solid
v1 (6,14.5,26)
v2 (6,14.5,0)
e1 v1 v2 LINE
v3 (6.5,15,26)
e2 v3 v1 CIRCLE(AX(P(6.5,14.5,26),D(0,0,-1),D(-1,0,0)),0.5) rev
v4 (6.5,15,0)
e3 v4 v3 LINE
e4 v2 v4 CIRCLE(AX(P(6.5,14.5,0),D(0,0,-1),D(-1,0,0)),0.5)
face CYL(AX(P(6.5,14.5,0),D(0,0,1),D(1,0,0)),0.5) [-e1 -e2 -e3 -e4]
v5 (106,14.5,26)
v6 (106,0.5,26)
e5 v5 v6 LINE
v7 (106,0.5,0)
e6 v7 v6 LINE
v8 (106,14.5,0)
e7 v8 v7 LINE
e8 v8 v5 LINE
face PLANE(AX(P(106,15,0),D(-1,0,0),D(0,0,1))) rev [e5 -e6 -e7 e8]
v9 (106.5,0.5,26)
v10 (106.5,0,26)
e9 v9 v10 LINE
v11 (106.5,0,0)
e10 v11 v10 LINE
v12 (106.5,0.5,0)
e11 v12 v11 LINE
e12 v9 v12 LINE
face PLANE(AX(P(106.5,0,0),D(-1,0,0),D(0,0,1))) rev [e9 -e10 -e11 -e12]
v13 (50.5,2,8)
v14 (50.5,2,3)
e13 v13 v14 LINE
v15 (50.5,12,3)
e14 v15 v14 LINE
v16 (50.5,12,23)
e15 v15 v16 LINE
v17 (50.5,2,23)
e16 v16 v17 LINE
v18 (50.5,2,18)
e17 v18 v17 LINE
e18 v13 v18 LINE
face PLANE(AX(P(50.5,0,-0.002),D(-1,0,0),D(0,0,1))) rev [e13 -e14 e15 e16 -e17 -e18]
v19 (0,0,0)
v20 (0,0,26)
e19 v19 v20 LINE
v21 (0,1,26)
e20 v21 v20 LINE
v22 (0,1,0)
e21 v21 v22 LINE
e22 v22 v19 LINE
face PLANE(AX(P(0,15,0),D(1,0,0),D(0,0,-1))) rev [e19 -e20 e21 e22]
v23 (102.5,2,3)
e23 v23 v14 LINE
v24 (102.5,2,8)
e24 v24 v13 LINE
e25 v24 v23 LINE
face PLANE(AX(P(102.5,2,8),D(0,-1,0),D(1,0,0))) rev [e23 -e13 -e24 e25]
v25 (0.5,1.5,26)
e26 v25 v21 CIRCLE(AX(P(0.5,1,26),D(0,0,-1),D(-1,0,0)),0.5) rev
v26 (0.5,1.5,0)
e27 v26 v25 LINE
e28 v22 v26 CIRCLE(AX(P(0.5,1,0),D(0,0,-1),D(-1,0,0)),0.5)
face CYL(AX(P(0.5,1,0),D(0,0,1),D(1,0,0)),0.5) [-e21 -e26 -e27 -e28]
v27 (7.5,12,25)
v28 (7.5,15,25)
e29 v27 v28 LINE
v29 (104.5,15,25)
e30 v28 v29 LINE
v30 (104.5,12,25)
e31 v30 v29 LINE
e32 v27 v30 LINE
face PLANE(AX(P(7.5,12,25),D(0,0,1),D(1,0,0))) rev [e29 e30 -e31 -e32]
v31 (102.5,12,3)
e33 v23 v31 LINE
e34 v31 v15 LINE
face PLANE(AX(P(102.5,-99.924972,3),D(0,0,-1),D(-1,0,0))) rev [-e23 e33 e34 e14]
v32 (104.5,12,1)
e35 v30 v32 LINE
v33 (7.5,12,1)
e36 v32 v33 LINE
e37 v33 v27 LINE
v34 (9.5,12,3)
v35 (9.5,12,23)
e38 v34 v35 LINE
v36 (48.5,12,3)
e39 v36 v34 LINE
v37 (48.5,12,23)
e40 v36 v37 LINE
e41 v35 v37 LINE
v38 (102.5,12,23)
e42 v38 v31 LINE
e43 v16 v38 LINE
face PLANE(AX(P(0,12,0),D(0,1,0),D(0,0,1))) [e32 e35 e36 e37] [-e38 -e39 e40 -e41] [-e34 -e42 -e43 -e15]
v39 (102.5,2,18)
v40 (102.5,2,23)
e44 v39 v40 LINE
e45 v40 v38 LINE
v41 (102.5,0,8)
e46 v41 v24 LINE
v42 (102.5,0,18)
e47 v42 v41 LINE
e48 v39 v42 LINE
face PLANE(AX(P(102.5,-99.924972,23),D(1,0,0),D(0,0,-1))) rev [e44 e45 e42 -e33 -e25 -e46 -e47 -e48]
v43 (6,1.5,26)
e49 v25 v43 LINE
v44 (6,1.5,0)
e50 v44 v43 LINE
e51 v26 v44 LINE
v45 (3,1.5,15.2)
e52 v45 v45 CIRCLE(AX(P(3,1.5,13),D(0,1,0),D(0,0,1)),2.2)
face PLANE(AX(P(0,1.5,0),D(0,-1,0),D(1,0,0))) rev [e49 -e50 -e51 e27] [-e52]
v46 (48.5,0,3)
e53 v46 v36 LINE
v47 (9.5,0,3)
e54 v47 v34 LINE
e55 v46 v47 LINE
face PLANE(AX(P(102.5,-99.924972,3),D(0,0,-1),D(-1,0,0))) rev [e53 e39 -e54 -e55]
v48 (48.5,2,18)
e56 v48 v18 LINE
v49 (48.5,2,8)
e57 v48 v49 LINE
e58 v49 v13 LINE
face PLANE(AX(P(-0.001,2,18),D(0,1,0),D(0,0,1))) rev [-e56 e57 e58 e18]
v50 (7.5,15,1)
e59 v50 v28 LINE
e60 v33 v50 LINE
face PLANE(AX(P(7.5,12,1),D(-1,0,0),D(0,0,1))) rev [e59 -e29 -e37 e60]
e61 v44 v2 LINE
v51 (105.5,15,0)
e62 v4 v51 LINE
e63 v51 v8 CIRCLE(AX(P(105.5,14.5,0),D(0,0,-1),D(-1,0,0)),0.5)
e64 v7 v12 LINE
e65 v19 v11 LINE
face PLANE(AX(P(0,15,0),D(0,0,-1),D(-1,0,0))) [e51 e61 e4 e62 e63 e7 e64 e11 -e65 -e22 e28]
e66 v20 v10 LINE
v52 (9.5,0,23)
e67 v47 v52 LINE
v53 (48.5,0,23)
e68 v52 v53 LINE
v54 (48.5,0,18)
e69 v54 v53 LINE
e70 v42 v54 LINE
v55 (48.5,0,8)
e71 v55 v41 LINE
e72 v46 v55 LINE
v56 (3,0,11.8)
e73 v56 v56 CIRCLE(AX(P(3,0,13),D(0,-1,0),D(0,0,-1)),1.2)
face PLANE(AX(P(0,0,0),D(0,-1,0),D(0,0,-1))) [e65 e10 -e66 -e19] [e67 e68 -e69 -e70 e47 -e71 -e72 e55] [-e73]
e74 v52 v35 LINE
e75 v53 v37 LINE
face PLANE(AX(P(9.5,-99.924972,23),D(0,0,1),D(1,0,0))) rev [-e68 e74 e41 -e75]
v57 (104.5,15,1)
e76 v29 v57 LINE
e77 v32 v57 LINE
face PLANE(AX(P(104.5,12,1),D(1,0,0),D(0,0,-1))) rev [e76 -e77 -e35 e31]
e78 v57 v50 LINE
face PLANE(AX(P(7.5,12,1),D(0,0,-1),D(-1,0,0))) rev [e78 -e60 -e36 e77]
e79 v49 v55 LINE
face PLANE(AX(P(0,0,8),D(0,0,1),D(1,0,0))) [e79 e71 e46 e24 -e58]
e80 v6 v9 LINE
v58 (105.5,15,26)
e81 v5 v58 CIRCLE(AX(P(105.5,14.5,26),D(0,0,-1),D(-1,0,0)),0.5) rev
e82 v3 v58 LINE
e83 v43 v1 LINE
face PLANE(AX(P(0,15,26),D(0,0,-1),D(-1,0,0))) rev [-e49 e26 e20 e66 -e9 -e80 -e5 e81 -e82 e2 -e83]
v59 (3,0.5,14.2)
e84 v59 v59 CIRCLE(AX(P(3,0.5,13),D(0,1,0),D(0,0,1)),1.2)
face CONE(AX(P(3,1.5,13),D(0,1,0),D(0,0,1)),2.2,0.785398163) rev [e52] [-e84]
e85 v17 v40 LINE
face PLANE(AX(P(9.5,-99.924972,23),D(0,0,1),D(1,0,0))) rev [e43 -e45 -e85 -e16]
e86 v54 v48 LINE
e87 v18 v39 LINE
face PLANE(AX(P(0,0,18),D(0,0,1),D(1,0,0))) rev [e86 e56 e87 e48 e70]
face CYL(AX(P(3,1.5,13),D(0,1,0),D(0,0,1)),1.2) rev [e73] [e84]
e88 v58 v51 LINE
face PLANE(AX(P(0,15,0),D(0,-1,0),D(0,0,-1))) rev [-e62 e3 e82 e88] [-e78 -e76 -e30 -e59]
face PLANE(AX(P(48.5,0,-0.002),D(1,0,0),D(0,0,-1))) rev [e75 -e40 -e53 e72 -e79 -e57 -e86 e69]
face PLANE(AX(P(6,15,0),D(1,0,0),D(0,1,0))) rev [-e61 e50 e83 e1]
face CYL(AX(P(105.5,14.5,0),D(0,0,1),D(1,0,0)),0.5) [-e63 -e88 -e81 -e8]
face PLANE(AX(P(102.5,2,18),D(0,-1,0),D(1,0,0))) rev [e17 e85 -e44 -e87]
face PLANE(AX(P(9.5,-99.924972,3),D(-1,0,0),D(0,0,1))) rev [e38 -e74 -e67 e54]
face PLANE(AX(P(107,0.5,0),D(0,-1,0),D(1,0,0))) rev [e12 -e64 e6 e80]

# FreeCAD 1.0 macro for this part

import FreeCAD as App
import Part
import Sketcher
Q = App.Units.Quantity


def edges_at(feature, points):
    """Names of the edges that pass closest to the given points."""
    edges = feature.Shape.Edges
    near = lambda p: min(range(len(edges)), key=lambda i: edges[i].distToShape(Part.Vertex(*p))[0])
    return sorted({f"Edge{near(p) + 1}" for p in points})


def add_polygon(sketch, points):
    """Adds a closed chain of lines whose ends are joined by coincident constraints."""
    first, n = sketch.GeometryCount, len(points)
    for a, b in zip(points, points[1:] + points[:1]):
        sketch.addGeometry(Part.LineSegment(App.Vector(*a, 0), App.Vector(*b, 0)), False)
    for i in range(n):
        sketch.addConstraint(Sketcher.Constraint("Coincident", first + i, 2, first + (i + 1) % n, 1))

doc = App.newDocument("Part")
body = doc.addObject("PartDesign::Body", "Body")

sketch1 = body.newObject("Sketcher::SketchObject", "Sketch")
sketch1.AttachmentSupport = (doc.getObject("XZ_Plane"), [""])
sketch1.MapMode = "FlatFace"
add_polygon(sketch1, [(0, 0), (0, 26), (107, 26), (107, 0)])
sketch1.addConstraint([
    Sketcher.Constraint("Vertical", 0),
    Sketcher.Constraint("Horizontal", 1),
    Sketcher.Constraint("Vertical", 2),
    Sketcher.Constraint("Horizontal", 3),
    Sketcher.Constraint("Coincident", 3, 2, -1, 1),
    Sketcher.Constraint("DistanceX", 1, 1, 1, 2, Q("107 mm")),
    Sketcher.Constraint("DistanceY", 0, 1, 0, 2, Q("26 mm")),
])
pad1 = body.newObject("PartDesign::Pad", "Pad")
pad1.Profile = sketch1
pad1.Length = 15
pad1.Reversed = True

sketch2 = body.newObject("Sketcher::SketchObject", "Sketch001")
sketch2.AttachmentSupport = (doc.getObject("XY_Plane"), [""])
sketch2.MapMode = "FlatFace"
sketch2.AttachmentOffset = App.Placement(App.Vector(0, 0, 26), App.Rotation())
add_polygon(sketch2, [(106, 15), (106, 0.5), (107, 0.5), (107, 15)])
add_polygon(sketch2, [(0, 15), (0, 1.5), (6, 1.5), (6, 15)])
sketch2.addConstraint([
    Sketcher.Constraint("Vertical", 0),
    Sketcher.Constraint("Horizontal", 1),
    Sketcher.Constraint("Vertical", 2),
    Sketcher.Constraint("Horizontal", 3),
    Sketcher.Constraint("Vertical", 4),
    Sketcher.Constraint("Horizontal", 5),
    Sketcher.Constraint("Vertical", 6),
    Sketcher.Constraint("Horizontal", 7),
    Sketcher.Constraint("PointOnObject", 4, 2, -2),
    Sketcher.Constraint("Horizontal", 3, 2, 6, 2),
    Sketcher.Constraint("DistanceX", 1, 1, 1, 2, Q("1 mm")),
    Sketcher.Constraint("DistanceX", 5, 1, 5, 2, Q("6 mm")),
    Sketcher.Constraint("DistanceY", 0, 2, 0, 1, Q("14.5 mm")),
    Sketcher.Constraint("DistanceY", 4, 2, 4, 1, Q("13.5 mm")),
    Sketcher.Constraint("DistanceX", -1, 1, 0, 2, Q("106 mm")),
    Sketcher.Constraint("DistanceY", -1, 1, 2, 2, Q("15 mm")),
])
pocket1 = body.newObject("PartDesign::Pocket", "Pocket")
pocket1.Profile = sketch2
pocket1.Type = "ThroughAll"
doc.recompute()

fillet = body.newObject("PartDesign::Fillet", "Fillet")
fillet.Base = (pocket1, edges_at(pocket1, [(106, 15, 13), (0, 1.5, 13), (6, 15, 13)]))
fillet.Radius = 0.5

sketch3 = body.newObject("Sketcher::SketchObject", "Sketch002")
sketch3.AttachmentSupport = (doc.getObject("XZ_Plane"), [""])
sketch3.MapMode = "FlatFace"
sketch3.AttachmentOffset = App.Placement(App.Vector(0, 0, -1.5), App.Rotation())
sketch3.addGeometry(Part.Circle(App.Vector(3, 13, 0), App.Vector(0, 0, 1), 1.2), False)
sketch3.addConstraint([
    Sketcher.Constraint("Diameter", 0, Q("2.4 mm")),
    Sketcher.Constraint("DistanceX", -1, 1, 0, 3, Q("3 mm")),
    Sketcher.Constraint("DistanceY", -1, 1, 0, 3, Q("13 mm")),
])
doc.recompute()
hole = body.newObject("PartDesign::Hole", "Hole")
hole.Profile = sketch3
hole.ThreadType = "None"
hole.Diameter = 2.4
hole.DepthType = "Dimension"
hole.Depth = 15
hole.DrillPoint = "Angled"
hole.DrillPointAngle = 118
hole.HoleCutType = "Countersink"
hole.HoleCutDiameter = 4.4
hole.HoleCutCountersinkAngle = 90
hole.Reversed = True

sketch4 = body.newObject("Sketcher::SketchObject", "Sketch003")
sketch4.AttachmentSupport = (doc.getObject("XZ_Plane"), [""])
sketch4.MapMode = "FlatFace"
sketch4.AttachmentOffset = App.Placement(App.Vector(0, 0, -15), App.Rotation())
add_polygon(sketch4, [(8, 1), (8, 25), (104, 25), (104, 1)])
sketch4.addConstraint([
    Sketcher.Constraint("Vertical", 0),
    Sketcher.Constraint("Horizontal", 1),
    Sketcher.Constraint("Vertical", 2),
    Sketcher.Constraint("Horizontal", 3),
    Sketcher.Constraint("DistanceX", 1, 1, 1, 2, Q("97 mm")),
    Sketcher.Constraint("DistanceY", 0, 1, 0, 2, Q("24 mm")),
    Sketcher.Constraint("DistanceY", -1, 1, 0, 2, Q("25 mm")),
    Sketcher.Constraint("DistanceX", -1, 1, 0, 2, Q("7.5 mm")),
])
pocket2 = body.newObject("PartDesign::Pocket", "Pocket001")
pocket2.Profile = sketch4
pocket2.Type = "ThroughAll"
pocket2.Reversed = True

sketch5 = body.newObject("Sketcher::SketchObject", "Sketch004")
sketch5.AttachmentSupport = (doc.getObject("XZ_Plane"), [""])
sketch5.MapMode = "FlatFace"
sketch5.AttachmentOffset = App.Placement(App.Vector(0, 0, -15), App.Rotation())
add_polygon(sketch5, [(8, 1), (8, 25), (104, 25), (104, 1)])
sketch5.addConstraint([
    Sketcher.Constraint("Vertical", 0),
    Sketcher.Constraint("Horizontal", 1),
    Sketcher.Constraint("Vertical", 2),
    Sketcher.Constraint("Horizontal", 3),
    Sketcher.Constraint("DistanceX", 1, 1, 1, 2, Q("97 mm")),
    Sketcher.Constraint("DistanceY", 0, 1, 0, 2, Q("24 mm")),
    Sketcher.Constraint("DistanceY", -1, 1, 0, 2, Q("25 mm")),
    Sketcher.Constraint("DistanceX", -1, 1, 0, 2, Q("7.5 mm")),
])
pad2 = body.newObject("PartDesign::Pad", "Pad001")
pad2.Profile = sketch5
pad2.Length = 1

sketch6 = body.newObject("Sketcher::SketchObject", "Sketch005")
sketch6.AttachmentSupport = (doc.getObject("XZ_Plane"), [""])
sketch6.MapMode = "FlatFace"
add_polygon(sketch6, [(8, 1), (8, 25), (104, 25), (104, 1)])
sketch6.addConstraint([
    Sketcher.Constraint("Vertical", 0),
    Sketcher.Constraint("Horizontal", 1),
    Sketcher.Constraint("Vertical", 2),
    Sketcher.Constraint("Horizontal", 3),
    Sketcher.Constraint("DistanceX", 1, 1, 1, 2, Q("97 mm")),
    Sketcher.Constraint("DistanceY", 0, 1, 0, 2, Q("24 mm")),
    Sketcher.Constraint("DistanceY", -1, 1, 0, 2, Q("25 mm")),
    Sketcher.Constraint("DistanceX", -1, 1, 0, 2, Q("7.5 mm")),
])
pocket3 = body.newObject("PartDesign::Pocket", "Pocket002")
pocket3.Profile = sketch6
pocket3.Type = "ThroughAll"

sketch7 = body.newObject("Sketcher::SketchObject", "Sketch006")
sketch7.AttachmentSupport = (doc.getObject("XZ_Plane"), [""])
sketch7.MapMode = "FlatFace"
sketch7.AttachmentOffset = App.Placement(App.Vector(0, 0, -15), App.Rotation())
add_polygon(sketch7, [(8, 1), (8, 25), (104, 25), (104, 1)])
add_polygon(sketch7, [(102, 23), (10, 23), (10, 3), (102, 3)])
sketch7.addConstraint([
    Sketcher.Constraint("Vertical", 0),
    Sketcher.Constraint("Horizontal", 1),
    Sketcher.Constraint("Vertical", 2),
    Sketcher.Constraint("Horizontal", 3),
    Sketcher.Constraint("Horizontal", 4),
    Sketcher.Constraint("Vertical", 5),
    Sketcher.Constraint("Horizontal", 6),
    Sketcher.Constraint("Vertical", 7),
    Sketcher.Constraint("DistanceX", 1, 1, 1, 2, Q("97 mm")),
    Sketcher.Constraint("DistanceX", 4, 2, 4, 1, Q("93 mm")),
    Sketcher.Constraint("DistanceY", 0, 1, 0, 2, Q("24 mm")),
    Sketcher.Constraint("DistanceY", 5, 2, 5, 1, Q("20 mm")),
    Sketcher.Constraint("DistanceY", -1, 1, 0, 2, Q("25 mm")),
    Sketcher.Constraint("DistanceY", -1, 1, 4, 2, Q("23 mm")),
    Sketcher.Constraint("DistanceX", 0, 2, 4, 2, Q("2 mm")),
    Sketcher.Constraint("DistanceX", -1, 1, 0, 2, Q("7.5 mm")),
])
pad3 = body.newObject("PartDesign::Pad", "Pad002")
pad3.Profile = sketch7
pad3.Length = 15

sketch8 = body.newObject("Sketcher::SketchObject", "Sketch007")
sketch8.AttachmentSupport = (doc.getObject("XZ_Plane"), [""])
sketch8.MapMode = "FlatFace"
sketch8.AttachmentOffset = App.Placement(App.Vector(0, 0, -15), App.Rotation())
add_polygon(sketch8, [(8, 1), (8, 25), (104, 25), (104, 1)])
add_polygon(sketch8, [(102, 23), (10, 23), (10, 3), (102, 3)])
sketch8.addConstraint([
    Sketcher.Constraint("Vertical", 0),
    Sketcher.Constraint("Horizontal", 1),
    Sketcher.Constraint("Vertical", 2),
    Sketcher.Constraint("Horizontal", 3),
    Sketcher.Constraint("Horizontal", 4),
    Sketcher.Constraint("Vertical", 5),
    Sketcher.Constraint("Horizontal", 6),
    Sketcher.Constraint("Vertical", 7),
    Sketcher.Constraint("DistanceX", 1, 1, 1, 2, Q("97 mm")),
    Sketcher.Constraint("DistanceX", 4, 2, 4, 1, Q("93 mm")),
    Sketcher.Constraint("DistanceY", 0, 1, 0, 2, Q("24 mm")),
    Sketcher.Constraint("DistanceY", 5, 2, 5, 1, Q("20 mm")),
    Sketcher.Constraint("DistanceY", -1, 1, 0, 2, Q("25 mm")),
    Sketcher.Constraint("DistanceY", -1, 1, 4, 2, Q("23 mm")),
    Sketcher.Constraint("DistanceX", 0, 2, 4, 2, Q("2 mm")),
    Sketcher.Constraint("DistanceX", -1, 1, 0, 2, Q("7.5 mm")),
])
pocket4 = body.newObject("PartDesign::Pocket", "Pocket003")
pocket4.Profile = sketch8
pocket4.Length = 3
pocket4.Reversed = True

sketch9 = body.newObject("Sketcher::SketchObject", "Sketch008")
sketch9.AttachmentSupport = (doc.getObject("XY_Plane"), [""])
sketch9.MapMode = "FlatFace"
sketch9.AttachmentOffset = App.Placement(App.Vector(0, 0, 3), App.Rotation())
add_polygon(sketch9, [(50.5, 2), (50.5, 0), (102.5, 0), (102.5, 2)])
sketch9.addConstraint([
    Sketcher.Constraint("Vertical", 0),
    Sketcher.Constraint("Horizontal", 1),
    Sketcher.Constraint("Vertical", 2),
    Sketcher.Constraint("Horizontal", 3),
    Sketcher.Constraint("PointOnObject", 0, 2, -1),
    Sketcher.Constraint("DistanceX", 1, 1, 1, 2, Q("52 mm")),
    Sketcher.Constraint("DistanceY", 0, 2, 0, 1, Q("2 mm")),
    Sketcher.Constraint("DistanceX", -1, 1, 0, 2, Q("50.5 mm")),
])
pad4 = body.newObject("PartDesign::Pad", "Pad003")
pad4.Profile = sketch9
pad4.Length = 5

sketch10 = body.newObject("Sketcher::SketchObject", "Sketch009")
sketch10.AttachmentSupport = (doc.getObject("XY_Plane"), [""])
sketch10.MapMode = "FlatFace"
sketch10.AttachmentOffset = App.Placement(App.Vector(0, 0, 23), App.Rotation())
add_polygon(sketch10, [(102.5, 2), (102.5, 0), (50.5, 0), (50.5, 2)])
sketch10.addConstraint([
    Sketcher.Constraint("Vertical", 0),
    Sketcher.Constraint("Horizontal", 1),
    Sketcher.Constraint("Vertical", 2),
    Sketcher.Constraint("Horizontal", 3),
    Sketcher.Constraint("PointOnObject", 0, 2, -1),
    Sketcher.Constraint("DistanceX", 1, 2, 1, 1, Q("52 mm")),
    Sketcher.Constraint("DistanceY", 0, 2, 0, 1, Q("2 mm")),
    Sketcher.Constraint("DistanceX", -1, 1, 0, 2, Q("102.5 mm")),
])
pad5 = body.newObject("PartDesign::Pad", "Pad004")
pad5.Profile = sketch10
pad5.Length = 5
pad5.Reversed = True

sketch11 = body.newObject("Sketcher::SketchObject", "Sketch010")
sketch11.AttachmentSupport = (doc.getObject("XY_Plane"), [""])
sketch11.MapMode = "FlatFace"
sketch11.AttachmentOffset = App.Placement(App.Vector(0, 0, 26), App.Rotation())
add_polygon(sketch11, [(106.5, 16.6), (106.5, 0), (107, 0), (107, 16.6)])
sketch11.addConstraint([
    Sketcher.Constraint("Vertical", 0),
    Sketcher.Constraint("Horizontal", 1),
    Sketcher.Constraint("Vertical", 2),
    Sketcher.Constraint("Horizontal", 3),
    Sketcher.Constraint("PointOnObject", 0, 2, -1),
    Sketcher.Constraint("DistanceX", 1, 1, 1, 2, Q("0.5 mm")),
    Sketcher.Constraint("DistanceX", -1, 1, 1, 2, Q("107 mm")),
    Sketcher.Constraint("DistanceY", 0, 2, 0, 1, Q("16.612241 mm")),
])
pocket5 = body.newObject("PartDesign::Pocket", "Pocket004")
pocket5.Profile = sketch11
pocket5.Type = "ThroughAll"

sketch12 = body.newObject("Sketcher::SketchObject", "Sketch011")
sketch12.AttachmentSupport = (doc.getObject("XY_Plane"), [""])
sketch12.MapMode = "FlatFace"
sketch12.AttachmentOffset = App.Placement(App.Vector(0, 0, 23), App.Rotation())
add_polygon(sketch12, [(50.5, 12), (50.5, 0), (48.5, 0), (48.5, 12)])
sketch12.addConstraint([
    Sketcher.Constraint("Vertical", 0),
    Sketcher.Constraint("Horizontal", 1),
    Sketcher.Constraint("Vertical", 2),
    Sketcher.Constraint("Horizontal", 3),
    Sketcher.Constraint("PointOnObject", 0, 2, -1),
    Sketcher.Constraint("DistanceX", 1, 2, 1, 1, Q("2 mm")),
    Sketcher.Constraint("DistanceY", 0, 2, 0, 1, Q("12 mm")),
    Sketcher.Constraint("DistanceX", -1, 1, 0, 2, Q("50.5 mm")),
])
pad6 = body.newObject("PartDesign::Pad", "Pad005")
pad6.Profile = sketch12
pad6.Type = "UpToFirst"
pad6.Reversed = True

sketch13 = body.newObject("Sketcher::SketchObject", "Sketch012")
sketch13.AttachmentSupport = (doc.getObject("YZ_Plane"), [""])
sketch13.MapMode = "FlatFace"
sketch13.AttachmentOffset = App.Placement(App.Vector(0, 0, 50.5), App.Rotation())
add_polygon(sketch13, [(2, 18), (0, 18), (0, 8), (2, 8)])
sketch13.addConstraint([
    Sketcher.Constraint("Horizontal", 0),
    Sketcher.Constraint("Vertical", 1),
    Sketcher.Constraint("Horizontal", 2),
    Sketcher.Constraint("Vertical", 3),
    Sketcher.Constraint("PointOnObject", 0, 2, -2),
    Sketcher.Constraint("DistanceX", 0, 2, 0, 1, Q("2 mm")),
    Sketcher.Constraint("DistanceY", 1, 2, 1, 1, Q("10 mm")),
    Sketcher.Constraint("DistanceY", -1, 1, 0, 2, Q("18 mm")),
])
pocket6 = body.newObject("PartDesign::Pocket", "Pocket005")
pocket6.Profile = sketch13
pocket6.Type = "UpToFirst"

doc.recompute()
